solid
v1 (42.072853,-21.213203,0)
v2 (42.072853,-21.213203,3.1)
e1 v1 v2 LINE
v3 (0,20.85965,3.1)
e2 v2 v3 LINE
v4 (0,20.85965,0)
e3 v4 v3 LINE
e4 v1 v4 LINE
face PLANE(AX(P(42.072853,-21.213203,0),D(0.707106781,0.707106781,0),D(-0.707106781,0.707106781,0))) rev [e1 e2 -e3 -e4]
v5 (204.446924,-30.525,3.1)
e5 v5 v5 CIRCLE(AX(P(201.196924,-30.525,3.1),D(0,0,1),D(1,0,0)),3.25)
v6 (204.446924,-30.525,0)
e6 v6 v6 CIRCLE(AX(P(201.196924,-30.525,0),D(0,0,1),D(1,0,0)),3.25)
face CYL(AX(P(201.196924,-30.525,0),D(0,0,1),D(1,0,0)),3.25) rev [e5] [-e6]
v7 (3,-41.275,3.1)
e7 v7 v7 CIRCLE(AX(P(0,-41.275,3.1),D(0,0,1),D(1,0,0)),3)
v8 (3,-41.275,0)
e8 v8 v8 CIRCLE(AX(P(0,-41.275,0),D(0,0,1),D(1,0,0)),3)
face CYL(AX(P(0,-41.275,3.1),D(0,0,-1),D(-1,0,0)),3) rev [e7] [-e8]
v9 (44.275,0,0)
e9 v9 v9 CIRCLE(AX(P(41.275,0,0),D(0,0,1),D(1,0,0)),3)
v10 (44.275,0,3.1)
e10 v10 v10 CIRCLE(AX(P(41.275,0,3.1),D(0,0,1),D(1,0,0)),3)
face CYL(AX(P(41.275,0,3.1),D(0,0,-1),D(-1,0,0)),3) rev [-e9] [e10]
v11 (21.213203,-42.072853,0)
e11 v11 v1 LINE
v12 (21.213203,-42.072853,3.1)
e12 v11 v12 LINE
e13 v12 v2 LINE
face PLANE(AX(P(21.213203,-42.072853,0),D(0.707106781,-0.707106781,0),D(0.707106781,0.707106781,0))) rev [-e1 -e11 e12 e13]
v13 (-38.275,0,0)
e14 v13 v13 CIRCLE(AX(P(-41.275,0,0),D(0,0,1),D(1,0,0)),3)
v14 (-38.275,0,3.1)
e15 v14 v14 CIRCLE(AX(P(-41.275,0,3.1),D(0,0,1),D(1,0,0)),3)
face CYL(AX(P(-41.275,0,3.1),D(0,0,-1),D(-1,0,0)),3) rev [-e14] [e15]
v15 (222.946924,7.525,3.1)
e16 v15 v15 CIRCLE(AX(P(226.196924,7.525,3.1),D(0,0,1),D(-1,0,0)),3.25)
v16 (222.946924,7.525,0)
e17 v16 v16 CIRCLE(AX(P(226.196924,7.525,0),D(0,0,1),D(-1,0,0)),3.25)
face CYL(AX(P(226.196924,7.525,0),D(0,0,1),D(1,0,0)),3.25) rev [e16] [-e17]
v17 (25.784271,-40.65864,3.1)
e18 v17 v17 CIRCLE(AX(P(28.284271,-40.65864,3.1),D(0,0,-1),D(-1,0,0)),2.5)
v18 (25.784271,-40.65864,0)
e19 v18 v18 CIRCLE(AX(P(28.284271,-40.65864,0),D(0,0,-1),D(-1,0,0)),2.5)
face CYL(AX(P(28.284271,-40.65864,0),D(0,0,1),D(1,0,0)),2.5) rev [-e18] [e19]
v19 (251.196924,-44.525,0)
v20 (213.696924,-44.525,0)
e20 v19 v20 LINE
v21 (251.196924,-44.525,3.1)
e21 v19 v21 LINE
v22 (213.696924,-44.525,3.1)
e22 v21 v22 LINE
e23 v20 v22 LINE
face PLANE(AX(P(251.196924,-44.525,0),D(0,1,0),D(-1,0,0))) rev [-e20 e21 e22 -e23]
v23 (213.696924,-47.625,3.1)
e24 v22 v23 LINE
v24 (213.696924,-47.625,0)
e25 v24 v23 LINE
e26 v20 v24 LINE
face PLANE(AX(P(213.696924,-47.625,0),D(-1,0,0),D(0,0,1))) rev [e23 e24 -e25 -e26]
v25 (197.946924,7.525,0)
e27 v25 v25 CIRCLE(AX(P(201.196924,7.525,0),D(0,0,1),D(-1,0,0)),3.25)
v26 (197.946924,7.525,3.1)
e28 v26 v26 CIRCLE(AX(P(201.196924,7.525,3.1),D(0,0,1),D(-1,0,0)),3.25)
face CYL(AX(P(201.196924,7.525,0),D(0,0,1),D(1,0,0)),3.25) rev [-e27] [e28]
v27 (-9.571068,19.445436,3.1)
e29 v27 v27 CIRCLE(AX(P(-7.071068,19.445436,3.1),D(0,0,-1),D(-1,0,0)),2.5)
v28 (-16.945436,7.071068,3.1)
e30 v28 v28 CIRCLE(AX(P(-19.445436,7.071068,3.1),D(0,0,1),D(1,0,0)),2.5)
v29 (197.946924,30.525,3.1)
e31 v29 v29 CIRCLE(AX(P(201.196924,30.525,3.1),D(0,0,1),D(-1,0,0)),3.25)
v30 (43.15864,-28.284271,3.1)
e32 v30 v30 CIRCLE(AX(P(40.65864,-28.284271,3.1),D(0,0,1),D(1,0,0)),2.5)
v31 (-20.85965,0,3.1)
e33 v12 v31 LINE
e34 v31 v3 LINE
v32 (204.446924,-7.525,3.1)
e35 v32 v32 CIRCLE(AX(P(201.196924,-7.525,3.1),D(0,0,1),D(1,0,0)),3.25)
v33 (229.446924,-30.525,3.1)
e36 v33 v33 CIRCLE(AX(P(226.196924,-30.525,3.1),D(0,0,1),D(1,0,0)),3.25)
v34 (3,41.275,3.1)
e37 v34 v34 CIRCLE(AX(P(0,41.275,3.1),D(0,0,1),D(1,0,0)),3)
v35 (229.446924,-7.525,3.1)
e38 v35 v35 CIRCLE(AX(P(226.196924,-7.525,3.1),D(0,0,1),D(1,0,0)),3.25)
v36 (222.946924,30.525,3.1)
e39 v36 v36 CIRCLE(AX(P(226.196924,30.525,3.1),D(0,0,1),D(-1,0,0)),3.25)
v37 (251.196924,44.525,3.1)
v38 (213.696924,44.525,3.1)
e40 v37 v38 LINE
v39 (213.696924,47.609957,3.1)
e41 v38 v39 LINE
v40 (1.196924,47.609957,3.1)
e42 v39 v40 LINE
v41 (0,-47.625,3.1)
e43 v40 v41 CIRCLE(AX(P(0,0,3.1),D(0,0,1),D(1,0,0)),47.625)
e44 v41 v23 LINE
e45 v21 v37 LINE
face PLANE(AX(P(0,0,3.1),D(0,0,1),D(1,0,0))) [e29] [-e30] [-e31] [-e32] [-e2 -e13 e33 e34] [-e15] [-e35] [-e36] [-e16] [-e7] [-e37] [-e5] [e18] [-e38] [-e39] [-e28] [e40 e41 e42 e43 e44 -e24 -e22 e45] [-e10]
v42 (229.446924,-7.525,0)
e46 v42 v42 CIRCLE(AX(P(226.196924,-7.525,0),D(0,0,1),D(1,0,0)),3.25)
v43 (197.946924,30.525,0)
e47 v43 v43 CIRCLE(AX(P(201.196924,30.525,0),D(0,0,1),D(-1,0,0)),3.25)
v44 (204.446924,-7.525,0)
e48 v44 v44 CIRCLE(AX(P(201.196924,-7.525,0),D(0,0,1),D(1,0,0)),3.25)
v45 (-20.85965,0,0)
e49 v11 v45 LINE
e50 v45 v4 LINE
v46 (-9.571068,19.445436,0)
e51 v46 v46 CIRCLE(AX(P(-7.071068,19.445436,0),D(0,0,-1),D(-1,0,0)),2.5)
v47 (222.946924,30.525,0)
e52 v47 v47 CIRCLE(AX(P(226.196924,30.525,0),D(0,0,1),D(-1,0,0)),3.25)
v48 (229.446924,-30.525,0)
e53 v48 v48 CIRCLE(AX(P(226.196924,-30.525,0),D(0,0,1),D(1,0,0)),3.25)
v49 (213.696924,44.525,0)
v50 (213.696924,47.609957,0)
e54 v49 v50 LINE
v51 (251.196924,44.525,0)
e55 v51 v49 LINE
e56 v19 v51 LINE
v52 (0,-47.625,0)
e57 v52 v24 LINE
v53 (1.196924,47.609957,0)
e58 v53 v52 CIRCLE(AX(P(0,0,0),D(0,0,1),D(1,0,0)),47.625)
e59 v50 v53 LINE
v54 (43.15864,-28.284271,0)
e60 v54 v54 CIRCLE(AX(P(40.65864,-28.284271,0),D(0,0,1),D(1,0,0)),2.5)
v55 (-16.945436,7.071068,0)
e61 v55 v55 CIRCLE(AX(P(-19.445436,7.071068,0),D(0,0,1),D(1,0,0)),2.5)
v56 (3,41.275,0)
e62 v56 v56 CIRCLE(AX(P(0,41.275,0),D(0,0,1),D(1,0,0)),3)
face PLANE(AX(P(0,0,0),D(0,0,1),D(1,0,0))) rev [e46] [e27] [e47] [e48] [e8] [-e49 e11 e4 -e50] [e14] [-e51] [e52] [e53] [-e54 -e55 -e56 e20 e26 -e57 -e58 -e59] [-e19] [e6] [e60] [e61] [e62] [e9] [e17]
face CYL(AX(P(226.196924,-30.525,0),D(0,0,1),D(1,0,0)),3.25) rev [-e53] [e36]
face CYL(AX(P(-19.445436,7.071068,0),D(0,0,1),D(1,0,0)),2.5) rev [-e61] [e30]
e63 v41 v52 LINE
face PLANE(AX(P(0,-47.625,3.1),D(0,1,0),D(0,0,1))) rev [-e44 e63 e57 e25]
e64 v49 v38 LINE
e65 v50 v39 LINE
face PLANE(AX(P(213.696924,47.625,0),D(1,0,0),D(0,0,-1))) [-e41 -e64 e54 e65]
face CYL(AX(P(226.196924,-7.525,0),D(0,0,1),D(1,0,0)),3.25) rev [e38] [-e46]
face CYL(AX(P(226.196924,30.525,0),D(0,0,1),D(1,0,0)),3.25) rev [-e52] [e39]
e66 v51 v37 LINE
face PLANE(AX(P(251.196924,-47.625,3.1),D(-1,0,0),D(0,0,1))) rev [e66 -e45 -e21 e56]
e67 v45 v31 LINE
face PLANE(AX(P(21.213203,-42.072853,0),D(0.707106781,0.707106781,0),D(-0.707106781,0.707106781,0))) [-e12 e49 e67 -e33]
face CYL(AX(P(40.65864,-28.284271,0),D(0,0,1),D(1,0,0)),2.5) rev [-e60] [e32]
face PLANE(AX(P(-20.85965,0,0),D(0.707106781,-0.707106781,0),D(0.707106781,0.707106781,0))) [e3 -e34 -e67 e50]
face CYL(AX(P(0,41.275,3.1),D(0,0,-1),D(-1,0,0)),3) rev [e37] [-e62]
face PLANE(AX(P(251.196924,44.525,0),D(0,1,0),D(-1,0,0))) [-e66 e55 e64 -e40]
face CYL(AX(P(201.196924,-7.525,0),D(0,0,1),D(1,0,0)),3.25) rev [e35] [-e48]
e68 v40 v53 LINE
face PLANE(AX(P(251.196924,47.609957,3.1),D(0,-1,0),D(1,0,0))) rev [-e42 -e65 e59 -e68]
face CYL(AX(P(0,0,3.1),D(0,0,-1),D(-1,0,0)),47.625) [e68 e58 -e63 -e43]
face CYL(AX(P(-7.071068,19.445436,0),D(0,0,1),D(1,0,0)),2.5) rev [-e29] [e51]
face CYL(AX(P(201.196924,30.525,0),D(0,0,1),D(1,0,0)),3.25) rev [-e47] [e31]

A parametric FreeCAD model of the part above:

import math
import FreeCAD as App
import Part
import Sketcher

V = App.Vector
Q = App.Units.Quantity


def add_polygon(sketch, points):
    """Adds a closed chain of lines whose ends are joined by coincident constraints."""
    first, n = sketch.GeometryCount, len(points)
    for a, b in zip(points, points[1:] + points[:1]):
        sketch.addGeometry(Part.LineSegment(App.Vector(*a, 0), App.Vector(*b, 0)), False)
    for i in range(n):
        sketch.addConstraint(Sketcher.Constraint("Coincident", first + i, 2, first + (i + 1) % n, 1))

doc = App.newDocument("Part")
params = doc.addObject("Spreadsheet::Sheet", "Params")
for row, (alias, value) in enumerate([
    ("sketch1_diameter", "6 mm"),
    ("sketch1_width", "250 mm"),
    ("pad1_length", "3.1 mm"),
    ("sketch2_diameter", "5 mm"),
    ("sketch2_length", "29.5 mm"),
    ("sketch2_length2", "59.5 mm"),
    ("sketch3_width", "37.5 mm"),
    ("sketch3_height", "3.1 mm"),
    ("sketch4_diameter", "6.5 mm"),
], start=1):
    params.set(f"A{row}", alias)
    params.set(f"B{row}", "=" + value)
    params.setAlias(f"B{row}", alias)

body = doc.addObject("PartDesign::Body", "Body")

sketch1 = doc.addObject("Sketcher::SketchObject", "Sketch")
body.addObject(sketch1)
sketch1.AttachmentSupport = (doc.XY_Plane, [""])
sketch1.MapMode = "FlatFace"
sketch1.addGeometry(Part.LineSegment(V(0, -47.6, 0), V(251.2, -47.6, 0)), False)
sketch1.addGeometry(Part.LineSegment(V(251.2, -47.6, 0), V(251.2, 47.6, 0)), False)
sketch1.addGeometry(Part.LineSegment(V(251.2, 47.6, 0), V(1.2, 47.6, 0)), False)
sketch1.addGeometry(Part.ArcOfCircle(Part.Circle(V(0, 0, 0), V(0, 0, 1), 47.6), math.radians(89), math.radians(270)), False)
sketch1.addGeometry(Part.Circle(V(0, -41.3, 0), V(0, 0, 1), 3), False)
sketch1.addGeometry(Part.Circle(V(-41.3, 0, 0), V(0, 0, 1), 3), False)
sketch1.addGeometry(Part.Circle(V(41.3, 0, 0), V(0, 0, 1), 3), False)
sketch1.addGeometry(Part.Circle(V(0, 41.3, 0), V(0, 0, 1), 3), False)
sketch1.addConstraint(Sketcher.Constraint("Coincident", 0, 2, 1, 1))
sketch1.addConstraint(Sketcher.Constraint("Coincident", 1, 2, 2, 1))
sketch1.addConstraint(Sketcher.Constraint("Coincident", 2, 2, 3, 1))
sketch1.addConstraint(Sketcher.Constraint("Tangent", 3, 2, 0, 1))
sketch1.addConstraint(Sketcher.Constraint("Horizontal", 0))
sketch1.addConstraint(Sketcher.Constraint("Vertical", 1))
sketch1.addConstraint(Sketcher.Constraint("Horizontal", 2))
sketch1.addConstraint(Sketcher.Constraint("Coincident", 3, 3, -1, 1))
sketch1.addConstraint(Sketcher.Constraint("Equal", 4, 5))
sketch1.addConstraint(Sketcher.Constraint("Equal", 5, 6))
sketch1.addConstraint(Sketcher.Constraint("Equal", 6, 7))
sketch1.addConstraint(Sketcher.Constraint("Symmetric", 5, 3, 6, 3, -1, 1))
sketch1.addConstraint(Sketcher.Constraint("Symmetric", 4, 3, 7, 3, -1, 1))
sketch1.addConstraint(Sketcher.Constraint("PointOnObject", 4, 3, -2))
sketch1.addConstraint(Sketcher.Constraint("PointOnObject", 5, 3, -1))
sketch1.addConstraint(Sketcher.Constraint("Diameter", 4, Q("6 mm")))
sketch1.addConstraint(Sketcher.Constraint("DistanceX", 2, 2, 2, 1, Q("250 mm")))
sketch1.addConstraint(Sketcher.Constraint("Radius", 3, Q("47.625 mm")))
sketch1.addConstraint(Sketcher.Constraint("DistanceY", 0, 2, 7, 3, Q("88.9 mm")))
sketch1.addConstraint(Sketcher.Constraint("DistanceX", 5, 3, 6, 3, Q("82.55 mm")))
sketch1.addConstraint(Sketcher.Constraint("DistanceX", 0, 1, 0, 2, Q("251.196924 mm")))
sketch1.setExpression("Constraints[15]", "Params.sketch1_diameter")
sketch1.setExpression("Constraints[16]", "Params.sketch1_width")
pad1 = doc.addObject("PartDesign::Pad", "Pad")
body.addObject(pad1)
pad1.Profile = sketch1
pad1.setExpression("Length", "Params.pad1_length")

sketch2 = doc.addObject("Sketcher::SketchObject", "Sketch001")
body.addObject(sketch2)
sketch2.AttachmentSupport = (doc.XY_Plane, [""])
sketch2.MapMode = "FlatFace"
sketch2.AttachmentOffset = App.Placement(V(0, 0, 3.1), App.Rotation())
sketch2.addGeometry(Part.Circle(V(-19.4, 7.1, 0), V(0, 0, 1), 2.5), False)
sketch2.addGeometry(Part.Circle(V(-7.1, 19.4, 0), V(0, 0, 1), 2.5), False)
sketch2.addGeometry(Part.Circle(V(40.7, -28.3, 0), V(0, 0, 1), 2.5), False)
sketch2.addGeometry(Part.Circle(V(28.3, -40.7, 0), V(0, 0, 1), 2.5), False)
add_polygon(sketch2, [(21.2, -42.1), (42.1, -21.2), (0, 20.9), (-20.9, 0)])
sketch2.addConstraint(Sketcher.Constraint("Equal", 0, 1))
sketch2.addConstraint(Sketcher.Constraint("Equal", 1, 2))
sketch2.addConstraint(Sketcher.Constraint("Equal", 2, 3))
sketch2.addConstraint(Sketcher.Constraint("PointOnObject", 5, 2, -2))
sketch2.addConstraint(Sketcher.Constraint("PointOnObject", 6, 2, -1))
sketch2.addConstraint(Sketcher.Constraint("Perpendicular", 4, 5))
sketch2.addConstraint(Sketcher.Constraint("Perpendicular", 5, 6))
sketch2.addConstraint(Sketcher.Constraint("Perpendicular", 6, 7))
sketch2.addConstraint(Sketcher.Constraint("Diameter", 0, Q("5 mm")))
sketch2.addConstraint(Sketcher.Constraint("Angle", 4, Q("45 deg")))
sketch2.addConstraint(Sketcher.Constraint("Distance", 4, Q("29.5 mm")))
sketch2.addConstraint(Sketcher.Constraint("Distance", 5, Q("59.5 mm")))
sketch2.addConstraint(Sketcher.Constraint("DistanceX", -1, 1, 2, 3, Q("40.65864 mm")))
sketch2.addConstraint(Sketcher.Constraint("DistanceY", 2, 3, -1, 1, Q("28.284271 mm")))
sketch2.addConstraint(Sketcher.Constraint("DistanceX", -1, 1, 3, 3, Q("28.284271 mm")))
sketch2.addConstraint(Sketcher.Constraint("DistanceY", 3, 3, -1, 1, Q("40.65864 mm")))
sketch2.addConstraint(Sketcher.Constraint("DistanceX", 0, 3, 1, 3, Q("12.374369 mm")))
sketch2.addConstraint(Sketcher.Constraint("DistanceY", 0, 3, 1, 3, Q("12.374369 mm")))
sketch2.addConstraint(Sketcher.Constraint("DistanceY", 2, 3, 0, 3, Q("35.355339 mm")))
sketch2.addConstraint(Sketcher.Constraint("DistanceX", 1, 3, 3, 3, Q("35.355339 mm")))
sketch2.setExpression("Constraints[12]", "Params.sketch2_diameter")
sketch2.setExpression("Constraints[14]", "Params.sketch2_length")
sketch2.setExpression("Constraints[15]", "Params.sketch2_length2")
pocket1 = doc.addObject("PartDesign::Pocket", "Pocket")
body.addObject(pocket1)
pocket1.Profile = sketch2
pocket1.Type = "ThroughAll"

sketch3 = doc.addObject("Sketcher::SketchObject", "Sketch002")
body.addObject(sketch3)
sketch3.AttachmentSupport = (doc.XY_Plane, [""])
sketch3.MapMode = "FlatFace"
sketch3.AttachmentOffset = App.Placement(V(0, 0, 3.1), App.Rotation())
add_polygon(sketch3, [(213.7, -44.5), (213.7, -47.6), (251.2, -47.6), (251.2, -44.5)])
sketch3.addConstraint(Sketcher.Constraint("Vertical", 0))
sketch3.addConstraint(Sketcher.Constraint("Horizontal", 1))
sketch3.addConstraint(Sketcher.Constraint("Vertical", 2))
sketch3.addConstraint(Sketcher.Constraint("Horizontal", 3))
sketch3.addConstraint(Sketcher.Constraint("DistanceX", 1, 1, 1, 2, Q("37.5 mm")))
sketch3.addConstraint(Sketcher.Constraint("DistanceY", 0, 2, 0, 1, Q("3.1 mm")))
sketch3.addConstraint(Sketcher.Constraint("DistanceY", 0, 2, -1, 1, Q("47.625 mm")))
sketch3.addConstraint(Sketcher.Constraint("DistanceX", -1, 1, 0, 2, Q("213.696924 mm")))
sketch3.setExpression("Constraints[8]", "Params.sketch3_width")
sketch3.setExpression("Constraints[9]", "Params.sketch3_height")
pocket2 = doc.addObject("PartDesign::Pocket", "Pocket001")
body.addObject(pocket2)
pocket2.Profile = sketch3
pocket2.Type = "ThroughAll"
doc.recompute()

mirrored = doc.addObject("PartDesign::Mirrored", "Mirrored")
body.addObject(mirrored)
mirrored.Originals = [pocket2]
mirrored.MirrorPlane = (doc.XZ_Plane, [""])
body.Tip = mirrored

sketch4 = doc.addObject("Sketcher::SketchObject", "Sketch003")
body.addObject(sketch4)
sketch4.AttachmentSupport = (doc.XY_Plane, [""])
sketch4.MapMode = "FlatFace"
sketch4.AttachmentOffset = App.Placement(V(0, 0, 3.1), App.Rotation())
sketch4.addGeometry(Part.Circle(V(226.2, -30.5, 0), V(0, 0, 1), 3.2), False)
sketch4.addGeometry(Part.Circle(V(226.2, -7.5, 0), V(0, 0, 1), 3.2), False)
sketch4.addGeometry(Part.Circle(V(226.2, 7.5, 0), V(0, 0, 1), 3.2), False)
sketch4.addGeometry(Part.Circle(V(226.2, 30.5, 0), V(0, 0, 1), 3.2), False)
sketch4.addGeometry(Part.Circle(V(201.2, -30.5, 0), V(0, 0, 1), 3.2), False)
sketch4.addGeometry(Part.Circle(V(201.2, -7.5, 0), V(0, 0, 1), 3.2), False)
sketch4.addGeometry(Part.Circle(V(201.2, 7.5, 0), V(0, 0, 1), 3.2), False)
sketch4.addGeometry(Part.Circle(V(201.2, 30.5, 0), V(0, 0, 1), 3.2), False)
sketch4.addConstraint(Sketcher.Constraint("Equal", 0, 1))
sketch4.addConstraint(Sketcher.Constraint("Equal", 1, 2))
sketch4.addConstraint(Sketcher.Constraint("Equal", 2, 3))
sketch4.addConstraint(Sketcher.Constraint("Equal", 3, 4))
sketch4.addConstraint(Sketcher.Constraint("Equal", 4, 5))
sketch4.addConstraint(Sketcher.Constraint("Equal", 5, 6))
sketch4.addConstraint(Sketcher.Constraint("Equal", 6, 7))
sketch4.addConstraint(Sketcher.Constraint("Symmetric", 1, 3, 2, 3, -1))
sketch4.addConstraint(Sketcher.Constraint("Symmetric", 0, 3, 3, 3, -1))
sketch4.addConstraint(Sketcher.Constraint("Symmetric", 5, 3, 6, 3, -1))
sketch4.addConstraint(Sketcher.Constraint("Symmetric", 4, 3, 7, 3, -1))
sketch4.addConstraint(Sketcher.Constraint("Horizontal", 0, 3, 4, 3))
sketch4.addConstraint(Sketcher.Constraint("Horizontal", 1, 3, 5, 3))
sketch4.addConstraint(Sketcher.Constraint("Vertical", 0, 3, 1, 3))
sketch4.addConstraint(Sketcher.Constraint("Vertical", 4, 3, 5, 3))
sketch4.addConstraint(Sketcher.Constraint("Diameter", 0, Q("6.5 mm")))
sketch4.addConstraint(Sketcher.Constraint("DistanceY", 0, 3, 1, 3, Q("23 mm")))
sketch4.addConstraint(Sketcher.Constraint("DistanceX", 4, 3, 0, 3, Q("25 mm")))
sketch4.addConstraint(Sketcher.Constraint("DistanceY", 1, 3, 2, 3, Q("15.05 mm")))
sketch4.addConstraint(Sketcher.Constraint("DistanceX", -1, 1, 0, 3, Q("226.196924 mm")))
sketch4.setExpression("Constraints[15]", "Params.sketch4_diameter")
pocket3 = doc.addObject("PartDesign::Pocket", "Pocket002")
body.addObject(pocket3)
pocket3.Profile = sketch4
pocket3.Type = "ThroughAll"

doc.recompute()
